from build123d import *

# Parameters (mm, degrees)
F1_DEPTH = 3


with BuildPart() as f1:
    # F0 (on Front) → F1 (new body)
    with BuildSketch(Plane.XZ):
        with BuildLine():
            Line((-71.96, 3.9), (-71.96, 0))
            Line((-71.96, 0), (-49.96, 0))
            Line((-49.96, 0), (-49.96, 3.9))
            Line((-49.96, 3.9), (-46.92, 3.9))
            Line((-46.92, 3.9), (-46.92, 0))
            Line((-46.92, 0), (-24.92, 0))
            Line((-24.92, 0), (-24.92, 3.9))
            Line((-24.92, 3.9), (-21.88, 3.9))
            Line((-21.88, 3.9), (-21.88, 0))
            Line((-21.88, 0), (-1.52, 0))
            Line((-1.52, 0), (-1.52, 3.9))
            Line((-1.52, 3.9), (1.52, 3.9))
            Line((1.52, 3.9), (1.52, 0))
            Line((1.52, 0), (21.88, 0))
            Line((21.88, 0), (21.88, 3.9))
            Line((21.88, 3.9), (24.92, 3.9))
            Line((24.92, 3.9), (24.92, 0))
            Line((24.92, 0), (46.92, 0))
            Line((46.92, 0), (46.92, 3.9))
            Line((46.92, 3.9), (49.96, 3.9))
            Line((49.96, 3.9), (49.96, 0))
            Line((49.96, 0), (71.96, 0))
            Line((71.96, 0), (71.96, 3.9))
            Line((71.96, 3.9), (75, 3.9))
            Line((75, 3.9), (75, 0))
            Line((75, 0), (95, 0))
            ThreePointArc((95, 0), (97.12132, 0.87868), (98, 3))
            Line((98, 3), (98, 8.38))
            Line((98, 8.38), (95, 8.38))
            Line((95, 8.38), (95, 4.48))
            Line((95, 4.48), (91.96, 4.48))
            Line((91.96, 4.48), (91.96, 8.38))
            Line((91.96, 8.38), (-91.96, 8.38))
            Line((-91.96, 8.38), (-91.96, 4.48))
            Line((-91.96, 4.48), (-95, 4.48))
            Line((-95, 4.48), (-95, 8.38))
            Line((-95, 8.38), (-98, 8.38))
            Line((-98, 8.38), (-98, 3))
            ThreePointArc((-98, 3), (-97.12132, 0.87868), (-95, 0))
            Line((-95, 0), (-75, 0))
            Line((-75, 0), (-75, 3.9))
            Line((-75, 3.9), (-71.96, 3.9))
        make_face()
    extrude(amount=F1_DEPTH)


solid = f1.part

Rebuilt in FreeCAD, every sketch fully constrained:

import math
import FreeCAD as App
import Part
import Sketcher
Q = App.Units.Quantity

doc = App.newDocument("Part")
params = doc.addObject("Spreadsheet::Sheet", "Params")
for row, (alias, value) in enumerate([
    ("sketch1_radius", "3.000001 mm"),
    ("sketch1_width", "22 mm"),
    ("sketch1_width2", "20 mm"),
    ("sketch1_height", "3.9 mm"),
    ("sketch1_width3", "3.04 mm"),
    ("pad1_length", "3 mm"),
], start=1):
    params.set(f"A{row}", alias)
    params.set(f"B{row}", "=" + value)
    params.setAlias(f"B{row}", alias)

body = doc.addObject("PartDesign::Body", "Body")

sketch1 = body.newObject("Sketcher::SketchObject", "Sketch")
sketch1.AttachmentSupport = (doc.getObject("XZ_Plane"), [""])
sketch1.MapMode = "FlatFace"
sketch1.addGeometry(Part.LineSegment(App.Vector(-72, 3.9, 0), App.Vector(-72, 0, 0)), False)
sketch1.addGeometry(Part.LineSegment(App.Vector(-72, 0, 0), App.Vector(-50, 0, 0)), False)
sketch1.addGeometry(Part.LineSegment(App.Vector(-50, 0, 0), App.Vector(-50, 3.9, 0)), False)
sketch1.addGeometry(Part.LineSegment(App.Vector(-50, 3.9, 0), App.Vector(-46.9, 3.9, 0)), False)
sketch1.addGeometry(Part.LineSegment(App.Vector(-46.9, 3.9, 0), App.Vector(-46.9, 0, 0)), False)
sketch1.addGeometry(Part.LineSegment(App.Vector(-46.9, 0, 0), App.Vector(-24.9, 0, 0)), False)
sketch1.addGeometry(Part.LineSegment(App.Vector(-24.9, 0, 0), App.Vector(-24.9, 3.9, 0)), False)
sketch1.addGeometry(Part.LineSegment(App.Vector(-24.9, 3.9, 0), App.Vector(-21.9, 3.9, 0)), False)
sketch1.addGeometry(Part.LineSegment(App.Vector(-21.9, 3.9, 0), App.Vector(-21.9, 0, 0)), False)
sketch1.addGeometry(Part.LineSegment(App.Vector(-21.9, 0, 0), App.Vector(-1.5, 0, 0)), False)
sketch1.addGeometry(Part.LineSegment(App.Vector(-1.5, 0, 0), App.Vector(-1.5, 3.9, 0)), False)
sketch1.addGeometry(Part.LineSegment(App.Vector(-1.5, 3.9, 0), App.Vector(1.5, 3.9, 0)), False)
sketch1.addGeometry(Part.LineSegment(App.Vector(1.5, 3.9, 0), App.Vector(1.5, 0, 0)), False)
sketch1.addGeometry(Part.LineSegment(App.Vector(1.5, 0, 0), App.Vector(21.9, 0, 0)), False)
sketch1.addGeometry(Part.LineSegment(App.Vector(21.9, 0, 0), App.Vector(21.9, 3.9, 0)), False)
sketch1.addGeometry(Part.LineSegment(App.Vector(21.9, 3.9, 0), App.Vector(24.9, 3.9, 0)), False)
sketch1.addGeometry(Part.LineSegment(App.Vector(24.9, 3.9, 0), App.Vector(24.9, 0, 0)), False)
sketch1.addGeometry(Part.LineSegment(App.Vector(24.9, 0, 0), App.Vector(46.9, 0, 0)), False)
sketch1.addGeometry(Part.LineSegment(App.Vector(46.9, 0, 0), App.Vector(46.9, 3.9, 0)), False)
sketch1.addGeometry(Part.LineSegment(App.Vector(46.9, 3.9, 0), App.Vector(50, 3.9, 0)), False)
sketch1.addGeometry(Part.LineSegment(App.Vector(50, 3.9, 0), App.Vector(50, 0, 0)), False)
sketch1.addGeometry(Part.LineSegment(App.Vector(50, 0, 0), App.Vector(72, 0, 0)), False)
sketch1.addGeometry(Part.LineSegment(App.Vector(72, 0, 0), App.Vector(72, 3.9, 0)), False)
sketch1.addGeometry(Part.LineSegment(App.Vector(72, 3.9, 0), App.Vector(75, 3.9, 0)), False)
sketch1.addGeometry(Part.LineSegment(App.Vector(75, 3.9, 0), App.Vector(75, 0, 0)), False)
sketch1.addGeometry(Part.LineSegment(App.Vector(75, 0, 0), App.Vector(95, 0, 0)), False)
sketch1.addGeometry(Part.ArcOfCircle(Part.Circle(App.Vector(95, 3, 0), App.Vector(0, 0, 1), 3), math.radians(-90), math.radians(0)), False)
sketch1.addGeometry(Part.LineSegment(App.Vector(98, 3, 0), App.Vector(98, 8.4, 0)), False)
sketch1.addGeometry(Part.LineSegment(App.Vector(98, 8.4, 0), App.Vector(95, 8.4, 0)), False)
sketch1.addGeometry(Part.LineSegment(App.Vector(95, 8.4, 0), App.Vector(95, 4.5, 0)), False)
sketch1.addGeometry(Part.LineSegment(App.Vector(95, 4.5, 0), App.Vector(92, 4.5, 0)), False)
sketch1.addGeometry(Part.LineSegment(App.Vector(92, 4.5, 0), App.Vector(92, 8.4, 0)), False)
sketch1.addGeometry(Part.LineSegment(App.Vector(92, 8.4, 0), App.Vector(-92, 8.4, 0)), False)
sketch1.addGeometry(Part.LineSegment(App.Vector(-92, 8.4, 0), App.Vector(-92, 4.5, 0)), False)
sketch1.addGeometry(Part.LineSegment(App.Vector(-92, 4.5, 0), App.Vector(-95, 4.5, 0)), False)
sketch1.addGeometry(Part.LineSegment(App.Vector(-95, 4.5, 0), App.Vector(-95, 8.4, 0)), False)
sketch1.addGeometry(Part.LineSegment(App.Vector(-95, 8.4, 0), App.Vector(-98, 8.4, 0)), False)
sketch1.addGeometry(Part.LineSegment(App.Vector(-98, 8.4, 0), App.Vector(-98, 3, 0)), False)
sketch1.addGeometry(Part.ArcOfCircle(Part.Circle(App.Vector(-95, 3, 0), App.Vector(0, 0, 1), 3), math.radians(-180), math.radians(-90)), False)
sketch1.addGeometry(Part.LineSegment(App.Vector(-95, 0, 0), App.Vector(-75, 0, 0)), False)
sketch1.addGeometry(Part.LineSegment(App.Vector(-75, 0, 0), App.Vector(-75, 3.9, 0)), False)
sketch1.addGeometry(Part.LineSegment(App.Vector(-75, 3.9, 0), App.Vector(-72, 3.9, 0)), False)
sketch1.addConstraint(Sketcher.Constraint("Coincident", 0, 2, 1, 1))
sketch1.addConstraint(Sketcher.Constraint("Coincident", 1, 2, 2, 1))
sketch1.addConstraint(Sketcher.Constraint("Coincident", 2, 2, 3, 1))
sketch1.addConstraint(Sketcher.Constraint("Coincident", 3, 2, 4, 1))
sketch1.addConstraint(Sketcher.Constraint("Coincident", 4, 2, 5, 1))
sketch1.addConstraint(Sketcher.Constraint("Coincident", 5, 2, 6, 1))
sketch1.addConstraint(Sketcher.Constraint("Coincident", 6, 2, 7, 1))
sketch1.addConstraint(Sketcher.Constraint("Coincident", 7, 2, 8, 1))
sketch1.addConstraint(Sketcher.Constraint("Coincident", 8, 2, 9, 1))
sketch1.addConstraint(Sketcher.Constraint("Coincident", 9, 2, 10, 1))
sketch1.addConstraint(Sketcher.Constraint("Coincident", 10, 2, 11, 1))
sketch1.addConstraint(Sketcher.Constraint("Coincident", 11, 2, 12, 1))
sketch1.addConstraint(Sketcher.Constraint("Coincident", 12, 2, 13, 1))
sketch1.addConstraint(Sketcher.Constraint("Coincident", 13, 2, 14, 1))
sketch1.addConstraint(Sketcher.Constraint("Coincident", 14, 2, 15, 1))
sketch1.addConstraint(Sketcher.Constraint("Coincident", 15, 2, 16, 1))
sketch1.addConstraint(Sketcher.Constraint("Coincident", 16, 2, 17, 1))
sketch1.addConstraint(Sketcher.Constraint("Coincident", 17, 2, 18, 1))
sketch1.addConstraint(Sketcher.Constraint("Coincident", 18, 2, 19, 1))
sketch1.addConstraint(Sketcher.Constraint("Coincident", 19, 2, 20, 1))
sketch1.addConstraint(Sketcher.Constraint("Coincident", 20, 2, 21, 1))
sketch1.addConstraint(Sketcher.Constraint("Coincident", 21, 2, 22, 1))
sketch1.addConstraint(Sketcher.Constraint("Coincident", 22, 2, 23, 1))
sketch1.addConstraint(Sketcher.Constraint("Coincident", 23, 2, 24, 1))
sketch1.addConstraint(Sketcher.Constraint("Coincident", 24, 2, 25, 1))
sketch1.addConstraint(Sketcher.Constraint("Tangent", 25, 2, 26, 1))
sketch1.addConstraint(Sketcher.Constraint("Tangent", 26, 2, 27, 1))
sketch1.addConstraint(Sketcher.Constraint("Coincident", 27, 2, 28, 1))
sketch1.addConstraint(Sketcher.Constraint("Coincident", 28, 2, 29, 1))
sketch1.addConstraint(Sketcher.Constraint("Coincident", 29, 2, 30, 1))
sketch1.addConstraint(Sketcher.Constraint("Coincident", 30, 2, 31, 1))
sketch1.addConstraint(Sketcher.Constraint("Coincident", 31, 2, 32, 1))
sketch1.addConstraint(Sketcher.Constraint("Coincident", 32, 2, 33, 1))
sketch1.addConstraint(Sketcher.Constraint("Coincident", 33, 2, 34, 1))
sketch1.addConstraint(Sketcher.Constraint("Coincident", 34, 2, 35, 1))
sketch1.addConstraint(Sketcher.Constraint("Coincident", 35, 2, 36, 1))
sketch1.addConstraint(Sketcher.Constraint("Coincident", 36, 2, 37, 1))
sketch1.addConstraint(Sketcher.Constraint("Tangent", 37, 2, 38, 1))
sketch1.addConstraint(Sketcher.Constraint("Tangent", 38, 2, 39, 1))
sketch1.addConstraint(Sketcher.Constraint("Coincident", 39, 2, 40, 1))
sketch1.addConstraint(Sketcher.Constraint("Coincident", 40, 2, 41, 1))
sketch1.addConstraint(Sketcher.Constraint("Coincident", 41, 2, 0, 1))
sketch1.addConstraint(Sketcher.Constraint("Vertical", 0))
sketch1.addConstraint(Sketcher.Constraint("Horizontal", 1))
sketch1.addConstraint(Sketcher.Constraint("Vertical", 2))
sketch1.addConstraint(Sketcher.Constraint("Horizontal", 3))
sketch1.addConstraint(Sketcher.Constraint("Vertical", 4))
sketch1.addConstraint(Sketcher.Constraint("Horizontal", 5))
sketch1.addConstraint(Sketcher.Constraint("Vertical", 6))
sketch1.addConstraint(Sketcher.Constraint("Horizontal", 7))
sketch1.addConstraint(Sketcher.Constraint("Vertical", 8))
sketch1.addConstraint(Sketcher.Constraint("Horizontal", 9))
sketch1.addConstraint(Sketcher.Constraint("Vertical", 10))
sketch1.addConstraint(Sketcher.Constraint("Horizontal", 11))
sketch1.addConstraint(Sketcher.Constraint("Vertical", 12))
sketch1.addConstraint(Sketcher.Constraint("Horizontal", 13))
sketch1.addConstraint(Sketcher.Constraint("Vertical", 14))
sketch1.addConstraint(Sketcher.Constraint("Horizontal", 15))
sketch1.addConstraint(Sketcher.Constraint("Vertical", 16))
sketch1.addConstraint(Sketcher.Constraint("Horizontal", 17))
sketch1.addConstraint(Sketcher.Constraint("Vertical", 18))
sketch1.addConstraint(Sketcher.Constraint("Horizontal", 19))
sketch1.addConstraint(Sketcher.Constraint("Vertical", 20))
sketch1.addConstraint(Sketcher.Constraint("Horizontal", 21))
sketch1.addConstraint(Sketcher.Constraint("Vertical", 22))
sketch1.addConstraint(Sketcher.Constraint("Horizontal", 23))
sketch1.addConstraint(Sketcher.Constraint("Vertical", 24))
sketch1.addConstraint(Sketcher.Constraint("Horizontal", 25))
sketch1.addConstraint(Sketcher.Constraint("Vertical", 27))
sketch1.addConstraint(Sketcher.Constraint("Horizontal", 28))
sketch1.addConstraint(Sketcher.Constraint("Vertical", 29))
sketch1.addConstraint(Sketcher.Constraint("Horizontal", 30))
sketch1.addConstraint(Sketcher.Constraint("Vertical", 31))
sketch1.addConstraint(Sketcher.Constraint("Horizontal", 32))
sketch1.addConstraint(Sketcher.Constraint("Vertical", 33))
sketch1.addConstraint(Sketcher.Constraint("Horizontal", 34))
sketch1.addConstraint(Sketcher.Constraint("Vertical", 35))
sketch1.addConstraint(Sketcher.Constraint("Horizontal", 36))
sketch1.addConstraint(Sketcher.Constraint("Vertical", 37))
sketch1.addConstraint(Sketcher.Constraint("Horizontal", 39))
sketch1.addConstraint(Sketcher.Constraint("Vertical", 40))
sketch1.addConstraint(Sketcher.Constraint("Horizontal", 41))
sketch1.addConstraint(Sketcher.Constraint("Equal", 26, 38))
sketch1.addConstraint(Sketcher.Constraint("Symmetric", 9, 2, 12, 2, -1, 1))
sketch1.addConstraint(Sketcher.Constraint("Symmetric", 5, 2, 16, 2, -1, 1))
sketch1.addConstraint(Sketcher.Constraint("Symmetric", 1, 2, 20, 2, -1, 1))
sketch1.addConstraint(Sketcher.Constraint("Symmetric", 25, 2, 38, 2, -1, 1))
sketch1.addConstraint(Sketcher.Constraint("Symmetric", 8, 2, 13, 2, -2))
sketch1.addConstraint(Sketcher.Constraint("Symmetric", 4, 2, 17, 2, -2))
sketch1.addConstraint(Sketcher.Constraint("Symmetric", 0, 2, 21, 2, -2))
sketch1.addConstraint(Sketcher.Constraint("Symmetric", 30, 2, 33, 2, -2))
sketch1.addConstraint(Sketcher.Constraint("Symmetric", 28, 2, 35, 2, -2))
sketch1.addConstraint(Sketcher.Constraint("Symmetric", 24, 2, 39, 2, -2))
sketch1.addConstraint(Sketcher.Constraint("Horizontal", 3, 2, 6, 2))
sketch1.addConstraint(Sketcher.Constraint("Horizontal", 7, 2, 10, 2))
sketch1.addConstraint(Sketcher.Constraint("Horizontal", 11, 2, 14, 2))
sketch1.addConstraint(Sketcher.Constraint("Horizontal", 15, 2, 18, 2))
sketch1.addConstraint(Sketcher.Constraint("Horizontal", 19, 2, 22, 2))
sketch1.addConstraint(Sketcher.Constraint("Horizontal", 28, 2, 31, 2))
sketch1.addConstraint(Sketcher.Constraint("Horizontal", 23, 2, 40, 2))
sketch1.addConstraint(Sketcher.Constraint("Vertical", 25, 2, 28, 2))
sketch1.addConstraint(Sketcher.Constraint("Equal", 1, 5))
sketch1.addConstraint(Sketcher.Constraint("Equal", 3, 7))
sketch1.addConstraint(Sketcher.Constraint("Equal", 7, 11))
sketch1.addConstraint(Sketcher.Constraint("Equal", 19, 23))
sketch1.addConstraint(Sketcher.Constraint("Equal", 23, 30))
sketch1.addConstraint(Sketcher.Constraint("Equal", 24, 29))
sketch1.addConstraint(Sketcher.Constraint("Radius", 26, Q("3.000001 mm")))
sketch1.addConstraint(Sketcher.Constraint("DistanceX", 1, 1, 1, 2, Q("22 mm")))
sketch1.addConstraint(Sketcher.Constraint("DistanceX", 25, 1, 25, 2, Q("20 mm")))
sketch1.addConstraint(Sketcher.Constraint("DistanceY", 0, 2, 0, 1, Q("3.9 mm")))
sketch1.addConstraint(Sketcher.Constraint("DistanceX", -1, 1, 26, 3, Q("94.999999 mm")))
sketch1.addConstraint(Sketcher.Constraint("DistanceX", 3, 1, 3, 2, Q("3.04 mm")))
sketch1.addConstraint(Sketcher.Constraint("DistanceY", 27, 1, 27, 2, Q("5.38 mm")))
sketch1.setExpression("Constraints[107]", "Params.sketch1_radius")
sketch1.setExpression("Constraints[108]", "Params.sketch1_width")
sketch1.setExpression("Constraints[109]", "Params.sketch1_width2")
sketch1.setExpression("Constraints[110]", "Params.sketch1_height")
sketch1.setExpression("Constraints[112]", "Params.sketch1_width3")
pad1 = body.newObject("PartDesign::Pad", "Pad")
pad1.Profile = sketch1
pad1.setExpression("Length", "Params.pad1_length")

doc.recompute()
